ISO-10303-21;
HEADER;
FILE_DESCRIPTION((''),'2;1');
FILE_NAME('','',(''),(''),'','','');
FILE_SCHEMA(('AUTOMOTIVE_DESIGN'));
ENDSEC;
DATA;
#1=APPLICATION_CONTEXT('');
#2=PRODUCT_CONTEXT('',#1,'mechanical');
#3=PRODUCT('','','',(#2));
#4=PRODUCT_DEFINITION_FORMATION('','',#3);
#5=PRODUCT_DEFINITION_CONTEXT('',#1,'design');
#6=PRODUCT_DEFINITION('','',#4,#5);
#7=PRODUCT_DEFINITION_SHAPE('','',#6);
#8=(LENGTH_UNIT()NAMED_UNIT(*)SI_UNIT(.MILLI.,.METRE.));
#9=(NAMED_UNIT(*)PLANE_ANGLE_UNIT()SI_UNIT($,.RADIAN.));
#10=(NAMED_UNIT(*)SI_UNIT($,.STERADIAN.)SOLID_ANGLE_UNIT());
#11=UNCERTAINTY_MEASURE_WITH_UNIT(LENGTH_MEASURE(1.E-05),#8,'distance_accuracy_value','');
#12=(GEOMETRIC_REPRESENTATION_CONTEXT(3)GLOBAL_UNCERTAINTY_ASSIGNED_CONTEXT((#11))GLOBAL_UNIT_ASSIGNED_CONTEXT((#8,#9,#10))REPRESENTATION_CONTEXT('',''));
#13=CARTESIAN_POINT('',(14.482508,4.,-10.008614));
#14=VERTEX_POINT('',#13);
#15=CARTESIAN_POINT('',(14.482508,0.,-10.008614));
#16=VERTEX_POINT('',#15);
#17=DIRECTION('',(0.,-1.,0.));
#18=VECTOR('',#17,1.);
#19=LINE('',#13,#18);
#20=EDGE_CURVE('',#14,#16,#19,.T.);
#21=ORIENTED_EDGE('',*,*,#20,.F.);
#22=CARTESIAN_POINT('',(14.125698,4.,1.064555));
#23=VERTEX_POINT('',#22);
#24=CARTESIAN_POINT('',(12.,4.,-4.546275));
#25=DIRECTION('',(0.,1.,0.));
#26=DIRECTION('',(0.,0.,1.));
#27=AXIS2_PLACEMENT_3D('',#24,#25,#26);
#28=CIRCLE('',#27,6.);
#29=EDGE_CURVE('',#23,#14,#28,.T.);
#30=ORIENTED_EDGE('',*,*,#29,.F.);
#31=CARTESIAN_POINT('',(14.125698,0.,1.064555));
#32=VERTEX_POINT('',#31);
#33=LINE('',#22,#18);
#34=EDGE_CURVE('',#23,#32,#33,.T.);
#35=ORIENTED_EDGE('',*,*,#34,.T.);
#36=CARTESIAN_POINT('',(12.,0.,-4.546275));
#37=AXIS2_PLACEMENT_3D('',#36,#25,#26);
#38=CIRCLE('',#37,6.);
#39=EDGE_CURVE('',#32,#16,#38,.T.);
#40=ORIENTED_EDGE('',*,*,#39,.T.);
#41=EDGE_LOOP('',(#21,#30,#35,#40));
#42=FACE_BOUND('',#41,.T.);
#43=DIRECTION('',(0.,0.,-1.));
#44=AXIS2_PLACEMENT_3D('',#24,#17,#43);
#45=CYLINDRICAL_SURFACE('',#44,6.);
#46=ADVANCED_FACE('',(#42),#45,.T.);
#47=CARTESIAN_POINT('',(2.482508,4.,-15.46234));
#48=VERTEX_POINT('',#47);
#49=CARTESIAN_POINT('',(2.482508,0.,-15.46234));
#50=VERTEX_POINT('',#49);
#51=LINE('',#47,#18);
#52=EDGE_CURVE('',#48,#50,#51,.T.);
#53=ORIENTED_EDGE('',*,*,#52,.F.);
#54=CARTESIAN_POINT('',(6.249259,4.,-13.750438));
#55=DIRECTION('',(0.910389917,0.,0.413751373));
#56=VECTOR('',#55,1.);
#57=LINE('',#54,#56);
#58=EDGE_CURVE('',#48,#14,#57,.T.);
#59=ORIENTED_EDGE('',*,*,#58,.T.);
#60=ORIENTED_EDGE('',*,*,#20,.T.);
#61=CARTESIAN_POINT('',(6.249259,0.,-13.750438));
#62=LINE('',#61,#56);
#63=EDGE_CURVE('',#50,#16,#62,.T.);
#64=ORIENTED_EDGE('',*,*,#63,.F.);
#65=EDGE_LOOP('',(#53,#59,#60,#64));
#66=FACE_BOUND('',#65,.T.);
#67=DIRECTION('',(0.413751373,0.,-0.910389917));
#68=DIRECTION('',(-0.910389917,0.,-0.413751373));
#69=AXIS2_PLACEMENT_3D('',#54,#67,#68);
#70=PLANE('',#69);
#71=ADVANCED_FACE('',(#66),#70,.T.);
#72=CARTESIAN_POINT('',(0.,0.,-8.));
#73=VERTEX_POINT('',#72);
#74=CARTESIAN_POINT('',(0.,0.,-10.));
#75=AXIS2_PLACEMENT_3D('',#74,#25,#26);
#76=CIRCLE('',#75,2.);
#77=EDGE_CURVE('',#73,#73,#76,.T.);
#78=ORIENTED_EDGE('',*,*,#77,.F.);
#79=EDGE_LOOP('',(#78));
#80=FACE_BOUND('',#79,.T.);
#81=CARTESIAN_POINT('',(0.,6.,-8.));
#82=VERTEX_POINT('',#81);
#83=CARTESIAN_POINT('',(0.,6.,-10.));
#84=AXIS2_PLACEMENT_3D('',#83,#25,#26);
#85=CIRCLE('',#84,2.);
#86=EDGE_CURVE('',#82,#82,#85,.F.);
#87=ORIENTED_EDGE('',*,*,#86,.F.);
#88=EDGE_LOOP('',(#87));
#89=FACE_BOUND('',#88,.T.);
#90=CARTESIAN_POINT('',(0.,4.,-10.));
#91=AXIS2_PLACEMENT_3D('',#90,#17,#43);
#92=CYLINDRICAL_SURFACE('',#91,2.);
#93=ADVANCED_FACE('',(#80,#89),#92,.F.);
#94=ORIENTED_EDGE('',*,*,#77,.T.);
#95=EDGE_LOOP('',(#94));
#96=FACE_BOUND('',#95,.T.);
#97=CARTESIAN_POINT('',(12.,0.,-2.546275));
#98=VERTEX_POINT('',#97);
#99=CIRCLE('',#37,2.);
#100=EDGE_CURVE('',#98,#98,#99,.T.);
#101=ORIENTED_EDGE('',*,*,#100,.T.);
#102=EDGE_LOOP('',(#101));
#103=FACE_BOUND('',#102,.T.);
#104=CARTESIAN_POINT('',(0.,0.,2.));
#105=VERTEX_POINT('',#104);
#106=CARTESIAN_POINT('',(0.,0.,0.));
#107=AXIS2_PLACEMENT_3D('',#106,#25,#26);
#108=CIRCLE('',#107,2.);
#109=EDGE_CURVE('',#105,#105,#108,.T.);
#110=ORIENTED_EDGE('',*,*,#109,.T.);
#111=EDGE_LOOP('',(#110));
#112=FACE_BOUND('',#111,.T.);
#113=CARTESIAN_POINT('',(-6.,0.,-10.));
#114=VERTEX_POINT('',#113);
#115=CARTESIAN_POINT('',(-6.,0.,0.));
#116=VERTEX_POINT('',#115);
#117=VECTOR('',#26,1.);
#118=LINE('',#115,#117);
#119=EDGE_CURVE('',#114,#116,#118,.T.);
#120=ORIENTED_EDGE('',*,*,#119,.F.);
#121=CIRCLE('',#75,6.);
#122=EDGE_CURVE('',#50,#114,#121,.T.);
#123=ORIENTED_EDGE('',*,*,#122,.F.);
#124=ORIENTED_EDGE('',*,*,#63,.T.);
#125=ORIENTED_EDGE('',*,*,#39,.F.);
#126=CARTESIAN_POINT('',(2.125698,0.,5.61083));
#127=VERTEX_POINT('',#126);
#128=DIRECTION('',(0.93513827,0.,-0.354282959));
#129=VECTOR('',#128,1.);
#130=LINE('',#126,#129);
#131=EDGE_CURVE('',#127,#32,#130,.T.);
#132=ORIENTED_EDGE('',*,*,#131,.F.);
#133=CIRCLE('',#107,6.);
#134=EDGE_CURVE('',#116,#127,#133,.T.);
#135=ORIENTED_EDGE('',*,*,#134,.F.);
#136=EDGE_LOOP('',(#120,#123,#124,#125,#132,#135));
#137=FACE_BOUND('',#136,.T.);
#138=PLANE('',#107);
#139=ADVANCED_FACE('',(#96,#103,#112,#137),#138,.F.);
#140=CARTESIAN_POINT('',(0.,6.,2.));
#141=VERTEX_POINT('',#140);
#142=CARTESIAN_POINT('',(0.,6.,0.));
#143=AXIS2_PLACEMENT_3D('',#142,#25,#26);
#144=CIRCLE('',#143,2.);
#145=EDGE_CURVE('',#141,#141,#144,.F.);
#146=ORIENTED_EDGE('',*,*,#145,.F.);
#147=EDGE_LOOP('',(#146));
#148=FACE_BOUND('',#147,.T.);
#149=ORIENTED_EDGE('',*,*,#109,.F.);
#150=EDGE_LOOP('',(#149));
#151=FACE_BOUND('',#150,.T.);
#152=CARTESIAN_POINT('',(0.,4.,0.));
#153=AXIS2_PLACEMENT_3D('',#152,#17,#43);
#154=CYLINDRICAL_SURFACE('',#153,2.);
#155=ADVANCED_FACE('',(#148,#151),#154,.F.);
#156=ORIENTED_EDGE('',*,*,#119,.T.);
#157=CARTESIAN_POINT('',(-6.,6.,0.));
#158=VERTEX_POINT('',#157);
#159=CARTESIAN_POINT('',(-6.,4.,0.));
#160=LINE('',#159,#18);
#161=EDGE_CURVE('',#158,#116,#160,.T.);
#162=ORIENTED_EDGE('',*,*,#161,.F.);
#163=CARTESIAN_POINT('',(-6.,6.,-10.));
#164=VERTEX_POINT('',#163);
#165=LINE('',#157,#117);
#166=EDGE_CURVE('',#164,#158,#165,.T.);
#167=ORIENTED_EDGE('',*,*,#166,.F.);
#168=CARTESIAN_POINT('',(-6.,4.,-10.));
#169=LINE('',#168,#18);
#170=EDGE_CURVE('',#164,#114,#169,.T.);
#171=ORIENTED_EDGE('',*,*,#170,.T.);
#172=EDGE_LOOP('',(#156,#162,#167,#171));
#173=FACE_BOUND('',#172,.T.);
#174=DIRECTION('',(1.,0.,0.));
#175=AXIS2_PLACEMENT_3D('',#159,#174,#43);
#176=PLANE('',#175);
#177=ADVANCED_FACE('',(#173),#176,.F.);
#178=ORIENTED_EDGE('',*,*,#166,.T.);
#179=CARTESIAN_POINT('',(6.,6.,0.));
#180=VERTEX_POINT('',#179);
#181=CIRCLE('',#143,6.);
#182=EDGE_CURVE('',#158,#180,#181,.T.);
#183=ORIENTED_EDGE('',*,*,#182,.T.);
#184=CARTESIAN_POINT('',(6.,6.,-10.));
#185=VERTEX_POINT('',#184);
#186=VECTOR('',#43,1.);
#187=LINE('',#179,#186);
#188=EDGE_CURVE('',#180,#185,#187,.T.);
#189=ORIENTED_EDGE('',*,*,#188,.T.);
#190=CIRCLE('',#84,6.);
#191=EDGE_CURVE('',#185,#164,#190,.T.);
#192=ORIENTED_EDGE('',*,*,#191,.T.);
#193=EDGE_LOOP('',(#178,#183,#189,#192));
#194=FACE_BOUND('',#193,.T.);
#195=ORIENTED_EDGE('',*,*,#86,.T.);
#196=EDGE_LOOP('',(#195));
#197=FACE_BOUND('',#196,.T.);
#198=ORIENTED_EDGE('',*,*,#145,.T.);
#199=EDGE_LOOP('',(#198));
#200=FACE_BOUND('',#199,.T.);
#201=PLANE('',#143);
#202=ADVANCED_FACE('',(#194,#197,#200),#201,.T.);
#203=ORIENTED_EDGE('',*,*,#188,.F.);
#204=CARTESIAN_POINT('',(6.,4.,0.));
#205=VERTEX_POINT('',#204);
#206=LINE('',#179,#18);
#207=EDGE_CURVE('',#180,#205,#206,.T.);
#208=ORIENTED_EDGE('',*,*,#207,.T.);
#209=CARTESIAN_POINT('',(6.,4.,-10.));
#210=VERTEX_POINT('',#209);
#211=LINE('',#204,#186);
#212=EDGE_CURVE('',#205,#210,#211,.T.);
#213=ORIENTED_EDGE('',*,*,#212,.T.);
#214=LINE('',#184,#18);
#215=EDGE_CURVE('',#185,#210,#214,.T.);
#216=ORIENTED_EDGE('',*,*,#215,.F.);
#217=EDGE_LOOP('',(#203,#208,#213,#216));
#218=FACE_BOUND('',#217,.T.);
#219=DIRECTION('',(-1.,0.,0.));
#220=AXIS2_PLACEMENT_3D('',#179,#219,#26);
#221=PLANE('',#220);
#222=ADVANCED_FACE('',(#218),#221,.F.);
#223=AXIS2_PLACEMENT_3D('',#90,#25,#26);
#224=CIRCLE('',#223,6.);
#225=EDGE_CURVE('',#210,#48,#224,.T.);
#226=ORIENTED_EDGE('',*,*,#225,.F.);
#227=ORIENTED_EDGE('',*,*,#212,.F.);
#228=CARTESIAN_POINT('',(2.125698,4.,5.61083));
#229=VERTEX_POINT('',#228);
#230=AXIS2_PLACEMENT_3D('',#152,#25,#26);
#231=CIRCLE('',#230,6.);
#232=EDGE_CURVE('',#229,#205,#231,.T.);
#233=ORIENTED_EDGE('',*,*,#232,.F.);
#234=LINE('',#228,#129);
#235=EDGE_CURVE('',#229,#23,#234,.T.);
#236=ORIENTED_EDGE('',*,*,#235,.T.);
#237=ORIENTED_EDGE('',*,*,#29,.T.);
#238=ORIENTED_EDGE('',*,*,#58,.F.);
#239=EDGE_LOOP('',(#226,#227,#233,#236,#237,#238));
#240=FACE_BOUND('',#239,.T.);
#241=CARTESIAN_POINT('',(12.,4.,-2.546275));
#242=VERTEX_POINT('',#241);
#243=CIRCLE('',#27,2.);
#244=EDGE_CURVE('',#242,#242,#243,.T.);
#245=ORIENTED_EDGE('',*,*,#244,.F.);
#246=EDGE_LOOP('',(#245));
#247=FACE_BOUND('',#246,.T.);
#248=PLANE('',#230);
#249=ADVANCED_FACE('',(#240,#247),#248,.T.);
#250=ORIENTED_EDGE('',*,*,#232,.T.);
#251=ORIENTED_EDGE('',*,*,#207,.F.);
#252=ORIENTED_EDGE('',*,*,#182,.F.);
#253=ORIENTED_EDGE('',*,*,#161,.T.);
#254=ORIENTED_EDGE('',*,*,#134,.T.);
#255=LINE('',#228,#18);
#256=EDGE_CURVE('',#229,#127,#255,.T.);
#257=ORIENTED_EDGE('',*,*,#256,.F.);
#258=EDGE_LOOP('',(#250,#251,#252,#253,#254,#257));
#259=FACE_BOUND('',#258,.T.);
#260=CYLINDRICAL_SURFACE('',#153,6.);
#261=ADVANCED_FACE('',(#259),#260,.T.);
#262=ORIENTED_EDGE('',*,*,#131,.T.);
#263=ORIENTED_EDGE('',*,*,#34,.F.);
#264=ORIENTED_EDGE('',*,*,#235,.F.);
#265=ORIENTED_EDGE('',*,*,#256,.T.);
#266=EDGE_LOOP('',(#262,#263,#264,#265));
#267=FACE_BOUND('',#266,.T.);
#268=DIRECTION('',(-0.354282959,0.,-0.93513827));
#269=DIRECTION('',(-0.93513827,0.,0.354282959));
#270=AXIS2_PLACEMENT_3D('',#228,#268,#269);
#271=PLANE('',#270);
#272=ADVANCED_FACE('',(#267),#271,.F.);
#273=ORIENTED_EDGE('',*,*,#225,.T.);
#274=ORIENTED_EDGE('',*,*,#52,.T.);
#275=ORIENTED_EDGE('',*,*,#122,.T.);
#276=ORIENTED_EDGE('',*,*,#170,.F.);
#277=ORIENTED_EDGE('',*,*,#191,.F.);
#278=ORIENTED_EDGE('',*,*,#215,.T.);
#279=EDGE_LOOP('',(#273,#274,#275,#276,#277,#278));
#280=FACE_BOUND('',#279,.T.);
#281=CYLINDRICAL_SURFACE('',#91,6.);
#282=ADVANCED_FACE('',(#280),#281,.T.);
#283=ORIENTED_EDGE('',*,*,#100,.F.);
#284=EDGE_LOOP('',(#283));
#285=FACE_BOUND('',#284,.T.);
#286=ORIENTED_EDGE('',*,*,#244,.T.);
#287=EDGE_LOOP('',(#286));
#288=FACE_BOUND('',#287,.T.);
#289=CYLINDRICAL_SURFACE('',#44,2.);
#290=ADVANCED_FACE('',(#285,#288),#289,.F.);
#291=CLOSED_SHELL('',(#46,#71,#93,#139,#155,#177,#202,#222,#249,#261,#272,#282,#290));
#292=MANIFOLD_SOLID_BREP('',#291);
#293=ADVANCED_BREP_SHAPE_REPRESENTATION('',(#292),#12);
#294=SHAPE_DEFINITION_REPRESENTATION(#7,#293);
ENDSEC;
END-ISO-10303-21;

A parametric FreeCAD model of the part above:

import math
import FreeCAD as App
import Part
import Sketcher

doc = App.newDocument("Part")
body = doc.addObject("PartDesign::Body", "Body")

# Sketch on XZ plane
sketch1 = body.newObject("Sketcher::SketchObject", "Sketch")
sketch1.AttachmentSupport = (doc.getObject("XZ_Plane"), [""])
sketch1.MapMode = "FlatFace"
sketch1.addGeometry(Part.LineSegment(App.Vector(2.1, 5.6, 0), App.Vector(14.1, 1.1, 0)), False)
sketch1.addGeometry(Part.ArcOfCircle(Part.Circle(App.Vector(12, -4.5, 0), App.Vector(0, 0, 1), 6), math.radians(-66), math.radians(69)), False)
sketch1.addGeometry(Part.LineSegment(App.Vector(14.5, -10, 0), App.Vector(2.5, -15.5, 0)), False)
sketch1.addGeometry(Part.ArcOfCircle(Part.Circle(App.Vector(0, -10, 0), App.Vector(0, 0, 1), 6), math.radians(180), math.radians(294)), False)
sketch1.addGeometry(Part.LineSegment(App.Vector(-6, -10, 0), App.Vector(-6, 0, 0)), False)
sketch1.addGeometry(Part.ArcOfCircle(Part.Circle(App.Vector(0, 0, 0), App.Vector(0, 0, 1), 6), math.radians(69), math.radians(180)), False)
sketch1.addGeometry(Part.Circle(App.Vector(0, 0, 0), App.Vector(0, 0, 1), 2), False)
sketch1.addGeometry(Part.Circle(App.Vector(12, -4.5, 0), App.Vector(0, 0, 1), 2), False)
sketch1.addGeometry(Part.Circle(App.Vector(0, -10, 0), App.Vector(0, 0, 1), 2), False)
sketch1.addConstraint(Sketcher.Constraint("Tangent", 0, 2, 1, 2))
sketch1.addConstraint(Sketcher.Constraint("Tangent", 1, 1, 2, 1))
sketch1.addConstraint(Sketcher.Constraint("Tangent", 2, 2, 3, 2))
sketch1.addConstraint(Sketcher.Constraint("Tangent", 3, 1, 4, 1))
sketch1.addConstraint(Sketcher.Constraint("Tangent", 4, 2, 5, 2))
sketch1.addConstraint(Sketcher.Constraint("Tangent", 5, 1, 0, 1))
sketch1.addConstraint(Sketcher.Constraint("Vertical", 4))
sketch1.addConstraint(Sketcher.Constraint("Coincident", 5, 3, -1, 1))
sketch1.addConstraint(Sketcher.Constraint("Coincident", 6, 3, -1, 1))
sketch1.addConstraint(Sketcher.Constraint("Coincident", 7, 3, 1, 3))
sketch1.addConstraint(Sketcher.Constraint("Coincident", 8, 3, 3, 3))
sketch1.addConstraint(Sketcher.Constraint("Equal", 1, 3))
sketch1.addConstraint(Sketcher.Constraint("Equal", 3, 5))
sketch1.addConstraint(Sketcher.Constraint("Equal", 6, 7))
sketch1.addConstraint(Sketcher.Constraint("Equal", 7, 8))
sketch1.addConstraint(Sketcher.Constraint("Diameter", 6, 4.0))
sketch1.addConstraint(Sketcher.Constraint("Radius", 1, 6.0))
sketch1.addConstraint(Sketcher.Constraint("DistanceY", 4, 1, 4, 2, 10.0))
sketch1.addConstraint(Sketcher.Constraint("DistanceX", -1, 1, 1, 3, 12.0))
sketch1.addConstraint(Sketcher.Constraint("DistanceX", -1, 1, 1, 1, 14.482508))
pad1 = body.newObject("PartDesign::Pad", "Pad")
pad1.Profile = sketch1
pad1.Length = 4
pad1.Reversed = True

# Sketch on XZ plane
sketch2 = body.newObject("Sketcher::SketchObject", "Sketch001")
sketch2.AttachmentSupport = (doc.getObject("XZ_Plane"), [""])
sketch2.MapMode = "FlatFace"
sketch2.AttachmentOffset = App.Placement(App.Vector(0, 0, -4), App.Rotation())
sketch2.addGeometry(Part.ArcOfCircle(Part.Circle(App.Vector(0, -10, 0), App.Vector(0, 0, 1), 6), math.radians(180), math.radians(360)), False)
sketch2.addGeometry(Part.LineSegment(App.Vector(-6, -10, 0), App.Vector(-6, 0, 0)), False)
sketch2.addGeometry(Part.ArcOfCircle(Part.Circle(App.Vector(0, 0, 0), App.Vector(0, 0, 1), 6), math.radians(0), math.radians(180)), False)
sketch2.addGeometry(Part.LineSegment(App.Vector(6, 0, 0), App.Vector(6, -10, 0)), False)
sketch2.addGeometry(Part.Circle(App.Vector(0, 0, 0), App.Vector(0, 0, 1), 2), False)
sketch2.addGeometry(Part.Circle(App.Vector(0, -10, 0), App.Vector(0, 0, 1), 2), False)
sketch2.addConstraint(Sketcher.Constraint("Tangent", 0, 1, 1, 1))
sketch2.addConstraint(Sketcher.Constraint("Tangent", 1, 2, 2, 2))
sketch2.addConstraint(Sketcher.Constraint("Tangent", 2, 1, 3, 1))
sketch2.addConstraint(Sketcher.Constraint("Tangent", 3, 2, 0, 2))
sketch2.addConstraint(Sketcher.Constraint("Vertical", 1))
sketch2.addConstraint(Sketcher.Constraint("Vertical", 3))
sketch2.addConstraint(Sketcher.Constraint("Coincident", 2, 3, -1, 1))
sketch2.addConstraint(Sketcher.Constraint("Coincident", 4, 3, -1, 1))
sketch2.addConstraint(Sketcher.Constraint("Coincident", 5, 3, 0, 3))
sketch2.addConstraint(Sketcher.Constraint("Equal", 4, 5))
sketch2.addConstraint(Sketcher.Constraint("Diameter", 4, 4.0))
sketch2.addConstraint(Sketcher.Constraint("Radius", 0, 6.0))
sketch2.addConstraint(Sketcher.Constraint("DistanceY", 1, 1, 1, 2, 10.0))
pad2 = body.newObject("PartDesign::Pad", "Pad001")
pad2.Profile = sketch2
pad2.Length = 2
pad2.Reversed = True

doc.recompute()
